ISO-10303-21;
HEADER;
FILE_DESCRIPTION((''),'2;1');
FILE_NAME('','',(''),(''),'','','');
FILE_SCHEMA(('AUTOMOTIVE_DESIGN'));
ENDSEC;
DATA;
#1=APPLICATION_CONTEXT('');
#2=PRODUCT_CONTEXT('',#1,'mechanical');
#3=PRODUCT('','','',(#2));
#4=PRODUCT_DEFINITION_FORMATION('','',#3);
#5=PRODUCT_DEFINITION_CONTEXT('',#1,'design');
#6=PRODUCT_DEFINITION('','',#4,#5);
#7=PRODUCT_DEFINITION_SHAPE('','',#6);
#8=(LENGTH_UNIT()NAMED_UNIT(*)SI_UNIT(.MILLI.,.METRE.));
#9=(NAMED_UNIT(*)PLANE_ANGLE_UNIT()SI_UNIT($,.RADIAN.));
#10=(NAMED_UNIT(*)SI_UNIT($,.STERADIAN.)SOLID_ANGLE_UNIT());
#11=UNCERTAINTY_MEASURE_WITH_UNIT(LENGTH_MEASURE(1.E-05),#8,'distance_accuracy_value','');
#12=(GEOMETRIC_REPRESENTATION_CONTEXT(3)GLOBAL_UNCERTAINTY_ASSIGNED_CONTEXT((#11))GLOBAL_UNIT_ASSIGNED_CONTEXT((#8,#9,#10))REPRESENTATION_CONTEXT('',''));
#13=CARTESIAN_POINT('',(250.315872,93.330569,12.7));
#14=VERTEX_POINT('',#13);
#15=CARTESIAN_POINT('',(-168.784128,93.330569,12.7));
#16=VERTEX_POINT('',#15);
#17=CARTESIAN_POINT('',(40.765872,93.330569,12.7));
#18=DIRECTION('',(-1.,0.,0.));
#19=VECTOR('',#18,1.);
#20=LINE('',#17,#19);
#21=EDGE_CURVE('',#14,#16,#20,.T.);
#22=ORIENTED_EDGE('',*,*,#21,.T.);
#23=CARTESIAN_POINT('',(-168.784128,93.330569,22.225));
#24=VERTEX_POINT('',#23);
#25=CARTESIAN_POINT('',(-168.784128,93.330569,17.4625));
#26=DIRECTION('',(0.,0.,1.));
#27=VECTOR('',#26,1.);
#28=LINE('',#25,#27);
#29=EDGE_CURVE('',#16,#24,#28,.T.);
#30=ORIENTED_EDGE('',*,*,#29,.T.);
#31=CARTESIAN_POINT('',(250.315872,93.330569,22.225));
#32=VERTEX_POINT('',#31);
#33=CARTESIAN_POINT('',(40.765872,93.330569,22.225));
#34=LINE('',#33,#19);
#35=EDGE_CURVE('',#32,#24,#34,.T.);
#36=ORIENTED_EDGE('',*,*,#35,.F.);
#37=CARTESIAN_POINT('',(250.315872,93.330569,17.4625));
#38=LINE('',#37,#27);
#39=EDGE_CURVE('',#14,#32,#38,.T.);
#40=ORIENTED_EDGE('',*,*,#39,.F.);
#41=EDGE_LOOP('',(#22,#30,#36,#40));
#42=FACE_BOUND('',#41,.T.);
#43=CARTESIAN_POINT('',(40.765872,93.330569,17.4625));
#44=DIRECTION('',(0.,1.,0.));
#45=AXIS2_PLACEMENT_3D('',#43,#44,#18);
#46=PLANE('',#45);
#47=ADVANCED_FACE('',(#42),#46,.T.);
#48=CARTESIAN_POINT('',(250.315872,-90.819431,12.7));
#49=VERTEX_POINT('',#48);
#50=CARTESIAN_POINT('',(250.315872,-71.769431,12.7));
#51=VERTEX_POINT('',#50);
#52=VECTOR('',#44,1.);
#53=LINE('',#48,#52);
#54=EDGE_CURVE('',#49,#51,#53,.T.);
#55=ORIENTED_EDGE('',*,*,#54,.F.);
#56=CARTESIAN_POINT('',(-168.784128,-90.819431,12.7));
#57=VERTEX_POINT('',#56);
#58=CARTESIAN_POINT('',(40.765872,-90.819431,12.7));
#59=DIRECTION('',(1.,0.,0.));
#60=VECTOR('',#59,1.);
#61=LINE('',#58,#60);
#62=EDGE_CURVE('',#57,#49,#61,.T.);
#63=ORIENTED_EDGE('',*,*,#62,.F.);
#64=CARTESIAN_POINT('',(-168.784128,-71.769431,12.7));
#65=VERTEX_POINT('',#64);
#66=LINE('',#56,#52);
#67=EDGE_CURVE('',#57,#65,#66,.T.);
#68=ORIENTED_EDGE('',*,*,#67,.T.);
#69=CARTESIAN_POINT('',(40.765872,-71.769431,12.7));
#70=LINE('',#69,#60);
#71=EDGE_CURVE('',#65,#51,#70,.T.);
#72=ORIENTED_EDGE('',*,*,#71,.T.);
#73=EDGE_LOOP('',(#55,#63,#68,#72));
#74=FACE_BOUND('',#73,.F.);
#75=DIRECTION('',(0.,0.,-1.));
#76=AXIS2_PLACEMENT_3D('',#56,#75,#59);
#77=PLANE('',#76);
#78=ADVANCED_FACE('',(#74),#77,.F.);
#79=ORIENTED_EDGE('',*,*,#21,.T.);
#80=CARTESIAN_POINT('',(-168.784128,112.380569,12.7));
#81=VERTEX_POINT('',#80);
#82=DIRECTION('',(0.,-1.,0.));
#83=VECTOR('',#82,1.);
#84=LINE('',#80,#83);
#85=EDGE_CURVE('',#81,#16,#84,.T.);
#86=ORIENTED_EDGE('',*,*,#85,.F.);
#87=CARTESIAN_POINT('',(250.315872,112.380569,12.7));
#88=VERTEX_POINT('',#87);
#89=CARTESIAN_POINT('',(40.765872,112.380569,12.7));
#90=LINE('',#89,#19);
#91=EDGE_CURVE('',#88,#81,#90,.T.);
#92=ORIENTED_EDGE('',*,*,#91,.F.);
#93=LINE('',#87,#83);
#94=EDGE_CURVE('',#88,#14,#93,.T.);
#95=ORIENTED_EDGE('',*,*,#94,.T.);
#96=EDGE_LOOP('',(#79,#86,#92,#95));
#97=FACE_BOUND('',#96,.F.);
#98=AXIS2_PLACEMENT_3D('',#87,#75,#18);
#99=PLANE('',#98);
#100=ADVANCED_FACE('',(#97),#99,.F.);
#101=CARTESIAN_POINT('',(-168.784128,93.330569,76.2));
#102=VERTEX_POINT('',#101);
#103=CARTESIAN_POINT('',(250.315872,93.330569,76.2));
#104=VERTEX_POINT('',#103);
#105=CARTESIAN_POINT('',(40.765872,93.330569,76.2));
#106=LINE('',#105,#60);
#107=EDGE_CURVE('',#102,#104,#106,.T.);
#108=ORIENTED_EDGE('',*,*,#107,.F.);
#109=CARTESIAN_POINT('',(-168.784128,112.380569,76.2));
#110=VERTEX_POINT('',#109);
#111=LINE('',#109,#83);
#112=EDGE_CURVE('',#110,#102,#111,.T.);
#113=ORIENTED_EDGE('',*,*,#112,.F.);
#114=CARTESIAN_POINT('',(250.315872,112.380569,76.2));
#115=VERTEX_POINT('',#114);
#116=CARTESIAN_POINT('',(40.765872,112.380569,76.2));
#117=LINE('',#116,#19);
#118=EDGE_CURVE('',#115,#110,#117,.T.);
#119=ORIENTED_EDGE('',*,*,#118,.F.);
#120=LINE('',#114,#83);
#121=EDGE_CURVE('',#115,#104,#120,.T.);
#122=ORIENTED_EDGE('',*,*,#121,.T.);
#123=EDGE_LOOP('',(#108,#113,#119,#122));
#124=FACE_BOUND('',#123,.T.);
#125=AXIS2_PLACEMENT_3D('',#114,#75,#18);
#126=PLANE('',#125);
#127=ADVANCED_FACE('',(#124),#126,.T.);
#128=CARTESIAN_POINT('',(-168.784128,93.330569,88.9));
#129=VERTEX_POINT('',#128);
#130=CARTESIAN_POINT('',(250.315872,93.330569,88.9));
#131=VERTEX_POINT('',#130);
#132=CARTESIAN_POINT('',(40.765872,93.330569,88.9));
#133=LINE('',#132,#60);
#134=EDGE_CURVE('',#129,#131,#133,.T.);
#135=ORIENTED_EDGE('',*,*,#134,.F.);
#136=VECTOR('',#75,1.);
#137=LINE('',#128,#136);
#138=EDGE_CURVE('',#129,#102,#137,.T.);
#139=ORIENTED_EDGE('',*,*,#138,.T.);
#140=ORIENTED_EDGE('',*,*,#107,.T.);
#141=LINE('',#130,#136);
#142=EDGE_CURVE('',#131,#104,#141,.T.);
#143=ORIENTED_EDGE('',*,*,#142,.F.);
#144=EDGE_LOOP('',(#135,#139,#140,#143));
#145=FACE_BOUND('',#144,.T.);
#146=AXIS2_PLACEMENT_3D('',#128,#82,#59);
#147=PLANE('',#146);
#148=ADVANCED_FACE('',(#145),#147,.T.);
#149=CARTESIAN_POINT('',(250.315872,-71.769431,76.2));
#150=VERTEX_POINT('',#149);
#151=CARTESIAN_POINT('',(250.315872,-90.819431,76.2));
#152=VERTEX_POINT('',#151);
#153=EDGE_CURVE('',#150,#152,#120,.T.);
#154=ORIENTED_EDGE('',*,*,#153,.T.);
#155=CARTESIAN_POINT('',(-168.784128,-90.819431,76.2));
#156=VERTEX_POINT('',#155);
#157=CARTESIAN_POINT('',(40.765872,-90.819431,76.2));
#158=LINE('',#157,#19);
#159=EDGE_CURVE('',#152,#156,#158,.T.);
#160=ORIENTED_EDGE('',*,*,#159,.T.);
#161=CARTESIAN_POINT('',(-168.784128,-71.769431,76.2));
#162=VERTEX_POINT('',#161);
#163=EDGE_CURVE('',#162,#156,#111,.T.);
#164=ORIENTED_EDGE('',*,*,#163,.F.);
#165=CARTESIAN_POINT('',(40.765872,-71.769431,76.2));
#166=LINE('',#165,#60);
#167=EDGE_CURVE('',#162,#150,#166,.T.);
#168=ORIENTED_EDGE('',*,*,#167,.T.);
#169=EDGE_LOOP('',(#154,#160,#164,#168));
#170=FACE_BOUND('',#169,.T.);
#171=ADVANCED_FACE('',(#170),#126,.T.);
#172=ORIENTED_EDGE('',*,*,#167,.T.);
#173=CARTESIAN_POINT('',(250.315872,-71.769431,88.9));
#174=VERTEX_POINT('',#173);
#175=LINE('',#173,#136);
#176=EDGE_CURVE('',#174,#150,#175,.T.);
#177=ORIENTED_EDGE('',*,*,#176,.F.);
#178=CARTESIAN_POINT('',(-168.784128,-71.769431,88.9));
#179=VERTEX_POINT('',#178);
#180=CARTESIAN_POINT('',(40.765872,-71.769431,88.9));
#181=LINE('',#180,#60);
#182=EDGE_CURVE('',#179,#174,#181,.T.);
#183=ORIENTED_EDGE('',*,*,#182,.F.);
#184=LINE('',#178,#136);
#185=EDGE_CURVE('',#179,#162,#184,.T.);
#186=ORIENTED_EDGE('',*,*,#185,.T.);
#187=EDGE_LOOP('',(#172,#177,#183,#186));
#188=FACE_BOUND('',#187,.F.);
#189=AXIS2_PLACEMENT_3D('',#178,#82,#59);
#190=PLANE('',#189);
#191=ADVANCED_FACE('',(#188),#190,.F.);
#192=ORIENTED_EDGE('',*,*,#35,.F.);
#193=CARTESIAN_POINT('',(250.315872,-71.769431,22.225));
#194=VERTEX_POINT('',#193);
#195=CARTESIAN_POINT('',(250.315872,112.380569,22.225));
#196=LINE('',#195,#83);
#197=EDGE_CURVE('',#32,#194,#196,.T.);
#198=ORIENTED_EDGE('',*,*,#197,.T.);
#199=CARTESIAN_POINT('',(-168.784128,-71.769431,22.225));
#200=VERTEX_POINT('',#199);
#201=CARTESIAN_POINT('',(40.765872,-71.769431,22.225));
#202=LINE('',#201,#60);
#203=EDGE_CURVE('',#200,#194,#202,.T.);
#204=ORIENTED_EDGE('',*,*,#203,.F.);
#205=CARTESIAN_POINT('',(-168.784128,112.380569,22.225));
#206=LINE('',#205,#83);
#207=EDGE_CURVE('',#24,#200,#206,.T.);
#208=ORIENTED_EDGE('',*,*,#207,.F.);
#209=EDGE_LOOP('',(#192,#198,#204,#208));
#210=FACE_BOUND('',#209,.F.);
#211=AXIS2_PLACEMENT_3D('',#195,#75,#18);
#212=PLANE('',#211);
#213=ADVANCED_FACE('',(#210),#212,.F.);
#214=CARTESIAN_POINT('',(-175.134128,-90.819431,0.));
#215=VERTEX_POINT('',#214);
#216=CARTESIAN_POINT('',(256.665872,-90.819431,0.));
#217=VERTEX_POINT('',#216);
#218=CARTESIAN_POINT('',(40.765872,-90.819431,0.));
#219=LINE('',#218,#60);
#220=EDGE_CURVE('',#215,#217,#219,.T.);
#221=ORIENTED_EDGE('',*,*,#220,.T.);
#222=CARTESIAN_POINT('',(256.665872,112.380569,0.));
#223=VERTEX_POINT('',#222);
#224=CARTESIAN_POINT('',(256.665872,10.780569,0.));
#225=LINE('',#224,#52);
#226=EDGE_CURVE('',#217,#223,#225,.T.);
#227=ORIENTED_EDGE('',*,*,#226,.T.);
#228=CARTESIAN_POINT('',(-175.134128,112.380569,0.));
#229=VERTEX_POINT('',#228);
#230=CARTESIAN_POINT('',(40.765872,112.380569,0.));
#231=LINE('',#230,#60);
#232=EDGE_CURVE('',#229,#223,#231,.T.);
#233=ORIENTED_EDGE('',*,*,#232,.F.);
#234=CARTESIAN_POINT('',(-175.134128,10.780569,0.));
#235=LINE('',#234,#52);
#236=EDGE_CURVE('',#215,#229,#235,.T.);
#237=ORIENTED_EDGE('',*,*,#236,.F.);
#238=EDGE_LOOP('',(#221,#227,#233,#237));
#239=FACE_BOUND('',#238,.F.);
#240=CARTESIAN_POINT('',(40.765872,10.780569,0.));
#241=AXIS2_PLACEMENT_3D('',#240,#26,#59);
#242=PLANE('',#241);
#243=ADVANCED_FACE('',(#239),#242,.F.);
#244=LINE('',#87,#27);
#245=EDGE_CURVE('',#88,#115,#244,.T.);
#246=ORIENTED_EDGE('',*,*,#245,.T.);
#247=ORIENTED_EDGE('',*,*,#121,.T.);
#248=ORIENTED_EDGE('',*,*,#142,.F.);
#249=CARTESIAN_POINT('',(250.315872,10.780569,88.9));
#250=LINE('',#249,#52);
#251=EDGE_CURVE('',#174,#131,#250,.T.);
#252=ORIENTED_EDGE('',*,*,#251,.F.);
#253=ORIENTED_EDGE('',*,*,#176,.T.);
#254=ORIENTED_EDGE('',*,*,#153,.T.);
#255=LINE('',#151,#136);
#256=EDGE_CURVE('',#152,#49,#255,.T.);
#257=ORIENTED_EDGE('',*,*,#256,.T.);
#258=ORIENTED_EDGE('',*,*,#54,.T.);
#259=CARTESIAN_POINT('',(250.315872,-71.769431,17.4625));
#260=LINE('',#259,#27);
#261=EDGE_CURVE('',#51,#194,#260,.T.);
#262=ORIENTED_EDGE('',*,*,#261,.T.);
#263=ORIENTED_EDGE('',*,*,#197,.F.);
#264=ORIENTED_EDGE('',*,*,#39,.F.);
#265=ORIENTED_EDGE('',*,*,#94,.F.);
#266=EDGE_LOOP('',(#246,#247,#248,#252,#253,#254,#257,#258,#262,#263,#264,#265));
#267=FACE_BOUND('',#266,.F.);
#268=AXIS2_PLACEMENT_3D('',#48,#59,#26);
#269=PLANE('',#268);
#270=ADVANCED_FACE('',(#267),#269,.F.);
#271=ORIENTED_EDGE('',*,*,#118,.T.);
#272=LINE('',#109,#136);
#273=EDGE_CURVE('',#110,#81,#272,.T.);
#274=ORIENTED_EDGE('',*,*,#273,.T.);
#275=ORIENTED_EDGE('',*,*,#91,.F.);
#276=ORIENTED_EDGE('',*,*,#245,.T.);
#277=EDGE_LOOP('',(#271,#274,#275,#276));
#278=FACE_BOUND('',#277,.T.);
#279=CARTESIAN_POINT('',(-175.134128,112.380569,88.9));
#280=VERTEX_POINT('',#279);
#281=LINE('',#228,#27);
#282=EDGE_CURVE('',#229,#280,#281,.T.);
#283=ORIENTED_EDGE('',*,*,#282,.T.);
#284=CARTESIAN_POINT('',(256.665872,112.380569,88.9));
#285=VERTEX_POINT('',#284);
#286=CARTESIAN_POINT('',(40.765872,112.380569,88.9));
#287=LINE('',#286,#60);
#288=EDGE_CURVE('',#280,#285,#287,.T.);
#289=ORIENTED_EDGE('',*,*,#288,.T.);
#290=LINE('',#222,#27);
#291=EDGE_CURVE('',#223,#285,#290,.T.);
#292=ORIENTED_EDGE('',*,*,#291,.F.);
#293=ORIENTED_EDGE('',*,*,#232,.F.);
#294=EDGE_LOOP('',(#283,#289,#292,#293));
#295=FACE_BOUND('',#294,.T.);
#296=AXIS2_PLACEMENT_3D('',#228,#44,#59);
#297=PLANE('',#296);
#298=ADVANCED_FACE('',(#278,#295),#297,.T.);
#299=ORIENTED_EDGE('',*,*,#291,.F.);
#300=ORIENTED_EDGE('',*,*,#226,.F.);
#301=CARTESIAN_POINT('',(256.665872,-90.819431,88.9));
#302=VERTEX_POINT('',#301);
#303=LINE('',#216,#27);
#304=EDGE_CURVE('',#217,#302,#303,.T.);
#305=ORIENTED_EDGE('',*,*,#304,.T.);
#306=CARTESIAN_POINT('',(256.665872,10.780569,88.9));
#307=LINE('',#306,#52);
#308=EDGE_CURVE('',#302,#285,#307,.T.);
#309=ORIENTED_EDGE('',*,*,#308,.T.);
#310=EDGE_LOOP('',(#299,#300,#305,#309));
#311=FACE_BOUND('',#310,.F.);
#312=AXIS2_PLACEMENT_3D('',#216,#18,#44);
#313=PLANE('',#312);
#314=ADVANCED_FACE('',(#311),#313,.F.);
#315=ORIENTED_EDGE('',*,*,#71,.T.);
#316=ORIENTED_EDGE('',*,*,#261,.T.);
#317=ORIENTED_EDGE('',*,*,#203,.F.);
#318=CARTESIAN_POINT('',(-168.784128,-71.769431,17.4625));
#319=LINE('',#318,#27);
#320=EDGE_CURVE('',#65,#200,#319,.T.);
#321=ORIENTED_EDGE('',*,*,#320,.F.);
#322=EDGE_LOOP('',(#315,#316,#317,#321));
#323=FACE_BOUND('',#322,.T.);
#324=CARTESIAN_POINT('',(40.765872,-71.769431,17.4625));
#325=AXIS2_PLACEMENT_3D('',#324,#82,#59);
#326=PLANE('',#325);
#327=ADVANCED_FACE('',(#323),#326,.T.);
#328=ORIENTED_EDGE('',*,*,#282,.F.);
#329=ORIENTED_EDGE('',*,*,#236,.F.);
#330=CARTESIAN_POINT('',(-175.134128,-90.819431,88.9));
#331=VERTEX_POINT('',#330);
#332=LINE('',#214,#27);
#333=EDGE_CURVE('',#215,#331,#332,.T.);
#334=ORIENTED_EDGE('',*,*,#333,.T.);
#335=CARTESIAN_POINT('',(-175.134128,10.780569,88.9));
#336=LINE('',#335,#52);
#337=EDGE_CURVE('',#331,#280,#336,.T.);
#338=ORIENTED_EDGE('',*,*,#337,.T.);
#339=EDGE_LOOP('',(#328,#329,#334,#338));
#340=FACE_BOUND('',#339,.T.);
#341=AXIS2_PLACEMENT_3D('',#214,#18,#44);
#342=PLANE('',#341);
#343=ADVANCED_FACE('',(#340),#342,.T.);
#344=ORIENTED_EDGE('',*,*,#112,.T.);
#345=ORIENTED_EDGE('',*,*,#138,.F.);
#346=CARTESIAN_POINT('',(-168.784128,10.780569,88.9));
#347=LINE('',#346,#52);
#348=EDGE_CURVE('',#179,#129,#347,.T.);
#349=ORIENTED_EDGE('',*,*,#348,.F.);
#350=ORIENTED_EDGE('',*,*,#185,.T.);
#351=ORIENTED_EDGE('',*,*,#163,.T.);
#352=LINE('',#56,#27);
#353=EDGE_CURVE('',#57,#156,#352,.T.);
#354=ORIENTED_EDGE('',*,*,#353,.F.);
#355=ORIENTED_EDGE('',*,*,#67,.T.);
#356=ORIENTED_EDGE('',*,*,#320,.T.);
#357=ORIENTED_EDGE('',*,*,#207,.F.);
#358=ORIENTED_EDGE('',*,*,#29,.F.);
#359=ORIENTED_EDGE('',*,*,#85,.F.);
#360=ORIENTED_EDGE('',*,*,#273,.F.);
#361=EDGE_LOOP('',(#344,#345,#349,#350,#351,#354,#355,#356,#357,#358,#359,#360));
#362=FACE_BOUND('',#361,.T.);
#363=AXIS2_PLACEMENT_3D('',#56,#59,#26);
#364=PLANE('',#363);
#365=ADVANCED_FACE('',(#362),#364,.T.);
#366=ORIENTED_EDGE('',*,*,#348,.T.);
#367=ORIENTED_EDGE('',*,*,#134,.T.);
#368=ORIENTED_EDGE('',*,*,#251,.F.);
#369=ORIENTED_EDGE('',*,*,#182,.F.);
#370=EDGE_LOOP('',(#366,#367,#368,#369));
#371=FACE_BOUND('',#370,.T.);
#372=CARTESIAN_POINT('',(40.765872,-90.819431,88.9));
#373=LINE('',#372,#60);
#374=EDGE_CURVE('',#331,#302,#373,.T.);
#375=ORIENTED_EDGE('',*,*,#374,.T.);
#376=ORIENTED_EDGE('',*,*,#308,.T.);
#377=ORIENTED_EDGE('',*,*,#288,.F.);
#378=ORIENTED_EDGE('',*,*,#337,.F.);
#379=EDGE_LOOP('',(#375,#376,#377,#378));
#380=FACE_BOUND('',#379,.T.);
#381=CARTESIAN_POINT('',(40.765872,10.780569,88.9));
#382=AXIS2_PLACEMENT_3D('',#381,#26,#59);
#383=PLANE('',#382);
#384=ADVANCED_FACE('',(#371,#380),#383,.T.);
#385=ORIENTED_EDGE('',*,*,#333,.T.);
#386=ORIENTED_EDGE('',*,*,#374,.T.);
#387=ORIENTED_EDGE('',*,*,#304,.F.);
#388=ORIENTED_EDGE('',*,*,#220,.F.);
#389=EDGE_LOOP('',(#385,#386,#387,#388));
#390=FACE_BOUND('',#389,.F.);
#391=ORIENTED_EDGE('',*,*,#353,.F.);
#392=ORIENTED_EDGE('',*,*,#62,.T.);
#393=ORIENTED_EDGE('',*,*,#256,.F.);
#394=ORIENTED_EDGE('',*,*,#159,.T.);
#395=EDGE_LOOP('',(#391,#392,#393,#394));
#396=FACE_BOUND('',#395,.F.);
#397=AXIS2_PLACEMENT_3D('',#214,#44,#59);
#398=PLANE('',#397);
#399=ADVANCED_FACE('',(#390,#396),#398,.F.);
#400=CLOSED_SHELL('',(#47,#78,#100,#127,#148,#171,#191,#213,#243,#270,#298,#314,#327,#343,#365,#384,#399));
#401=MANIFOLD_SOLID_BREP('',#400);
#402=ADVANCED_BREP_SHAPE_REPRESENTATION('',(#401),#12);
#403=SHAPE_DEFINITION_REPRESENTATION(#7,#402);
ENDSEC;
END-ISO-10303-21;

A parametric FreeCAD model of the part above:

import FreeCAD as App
import Part
import Sketcher
Q = App.Units.Quantity


def add_polygon(sketch, points):
    """Adds a closed chain of lines whose ends are joined by coincident constraints."""
    first, n = sketch.GeometryCount, len(points)
    for a, b in zip(points, points[1:] + points[:1]):
        sketch.addGeometry(Part.LineSegment(App.Vector(*a, 0), App.Vector(*b, 0)), False)
    for i in range(n):
        sketch.addConstraint(Sketcher.Constraint("Coincident", first + i, 2, first + (i + 1) % n, 1))

doc = App.newDocument("Part")
body = doc.addObject("PartDesign::Body", "Body")

sketch1 = body.newObject("Sketcher::SketchObject", "Sketch")
sketch1.AttachmentSupport = (doc.getObject("XY_Plane"), [""])
sketch1.MapMode = "FlatFace"
add_polygon(sketch1, [(-175, 112), (-175, -91), (257, -91), (257, 112)])
sketch1.addConstraint([
    Sketcher.Constraint("Vertical", 0),
    Sketcher.Constraint("Horizontal", 1),
    Sketcher.Constraint("Vertical", 2),
    Sketcher.Constraint("Horizontal", 3),
    Sketcher.Constraint("DistanceX", 1, 1, 1, 2, Q("17 in")),
    Sketcher.Constraint("DistanceY", 0, 2, 0, 1, Q("8 in")),
    Sketcher.Constraint("DistanceX", 0, 2, -1, 1, Q("175.134128 mm")),
    Sketcher.Constraint("DistanceY", 0, 2, -1, 1, Q("90.819431 mm")),
])
pad1 = body.newObject("PartDesign::Pad", "Pad")
pad1.Profile = sketch1
pad1.Length = Q("3.5 in")

sketch2 = body.newObject("Sketcher::SketchObject", "Sketch001")
sketch2.AttachmentSupport = (doc.getObject("XZ_Plane"), [""])
sketch2.MapMode = "FlatFace"
sketch2.AttachmentOffset = App.Placement(App.Vector(0, 0, -112.380569), App.Rotation())
add_polygon(sketch2, [(250, 76), (250, 22), (-169, 22), (-169, 76)])
sketch2.addConstraint([
    Sketcher.Constraint("Vertical", 0),
    Sketcher.Constraint("Horizontal", 1),
    Sketcher.Constraint("Vertical", 2),
    Sketcher.Constraint("Horizontal", 3),
    Sketcher.Constraint("DistanceX", 1, 2, 1, 1, Q("16.5 in")),
    Sketcher.Constraint("DistanceY", -1, 1, 2, 2, Q("3 in")),
    Sketcher.Constraint("DistanceY", 0, 2, 0, 1, Q("2.125 in")),
    Sketcher.Constraint("DistanceX", 1, 2, -1, 1, Q("168.784128 mm")),
])
pocket1 = body.newObject("PartDesign::Pocket", "Pocket")
pocket1.Profile = sketch2
pocket1.Type = "ThroughAll"
pocket1.Reversed = True

sketch3 = body.newObject("Sketcher::SketchObject", "Sketch002")
sketch3.AttachmentSupport = (doc.getObject("XY_Plane"), [""])
sketch3.MapMode = "FlatFace"
sketch3.AttachmentOffset = App.Placement(App.Vector(0, 0, 3.5 * 25.4), App.Rotation())
add_polygon(sketch3, [(-169, 93), (-169, -72), (250, -72), (250, 93)])
sketch3.addConstraint([
    Sketcher.Constraint("Vertical", 0),
    Sketcher.Constraint("Horizontal", 1),
    Sketcher.Constraint("Vertical", 2),
    Sketcher.Constraint("Horizontal", 3),
    Sketcher.Constraint("DistanceX", 1, 1, 1, 2, Q("16.5 in")),
    Sketcher.Constraint("DistanceY", 0, 2, 0, 1, Q("6.5 in")),
    Sketcher.Constraint("DistanceX", 0, 2, -1, 1, Q("168.784128 mm")),
    Sketcher.Constraint("DistanceY", 0, 2, -1, 1, Q("71.769431 mm")),
])
pocket2 = body.newObject("PartDesign::Pocket", "Pocket001")
pocket2.Profile = sketch3
pocket2.Length = Q("0.5 in")

sketch4 = body.newObject("Sketcher::SketchObject", "Sketch003")
sketch4.AttachmentSupport = (doc.getObject("XZ_Plane"), [""])
sketch4.MapMode = "FlatFace"
sketch4.AttachmentOffset = App.Placement(App.Vector(0, 0, -112.380569), App.Rotation())
add_polygon(sketch4, [(250, 22), (250, 13), (-169, 13), (-169, 22)])
sketch4.addConstraint([
    Sketcher.Constraint("Vertical", 0),
    Sketcher.Constraint("Horizontal", 1),
    Sketcher.Constraint("Vertical", 2),
    Sketcher.Constraint("Horizontal", 3),
    Sketcher.Constraint("DistanceX", 1, 2, 1, 1, Q("16.5 in")),
    Sketcher.Constraint("DistanceY", -1, 1, 0, 2, Q("0.5 in")),
    Sketcher.Constraint("DistanceY", 0, 2, 0, 1, Q("0.375 in")),
    Sketcher.Constraint("DistanceX", 1, 2, -1, 1, Q("168.784128 mm")),
])
pocket3 = body.newObject("PartDesign::Pocket", "Pocket002")
pocket3.Profile = sketch4
pocket3.Length = Q("0.75 in")
pocket3.Reversed = True

sketch5 = body.newObject("Sketcher::SketchObject", "Sketch004")
sketch5.AttachmentSupport = (doc.getObject("XZ_Plane"), [""])
sketch5.MapMode = "FlatFace"
sketch5.AttachmentOffset = App.Placement(App.Vector(0, 0, 90.819431), App.Rotation())
add_polygon(sketch5, [(-169, 22), (-169, 13), (250, 13), (250, 22)])
sketch5.addConstraint([
    Sketcher.Constraint("Vertical", 0),
    Sketcher.Constraint("Horizontal", 1),
    Sketcher.Constraint("Vertical", 2),
    Sketcher.Constraint("Horizontal", 3),
    Sketcher.Constraint("DistanceX", 1, 1, 1, 2, Q("16.5 in")),
    Sketcher.Constraint("DistanceY", -1, 1, 0, 2, Q("0.5 in")),
    Sketcher.Constraint("DistanceY", 0, 2, 0, 1, Q("0.375 in")),
    Sketcher.Constraint("DistanceX", 0, 2, -1, 1, Q("168.784128 mm")),
])
pocket4 = body.newObject("PartDesign::Pocket", "Pocket003")
pocket4.Profile = sketch5
pocket4.Length = Q("0.75 in")

doc.recompute()
